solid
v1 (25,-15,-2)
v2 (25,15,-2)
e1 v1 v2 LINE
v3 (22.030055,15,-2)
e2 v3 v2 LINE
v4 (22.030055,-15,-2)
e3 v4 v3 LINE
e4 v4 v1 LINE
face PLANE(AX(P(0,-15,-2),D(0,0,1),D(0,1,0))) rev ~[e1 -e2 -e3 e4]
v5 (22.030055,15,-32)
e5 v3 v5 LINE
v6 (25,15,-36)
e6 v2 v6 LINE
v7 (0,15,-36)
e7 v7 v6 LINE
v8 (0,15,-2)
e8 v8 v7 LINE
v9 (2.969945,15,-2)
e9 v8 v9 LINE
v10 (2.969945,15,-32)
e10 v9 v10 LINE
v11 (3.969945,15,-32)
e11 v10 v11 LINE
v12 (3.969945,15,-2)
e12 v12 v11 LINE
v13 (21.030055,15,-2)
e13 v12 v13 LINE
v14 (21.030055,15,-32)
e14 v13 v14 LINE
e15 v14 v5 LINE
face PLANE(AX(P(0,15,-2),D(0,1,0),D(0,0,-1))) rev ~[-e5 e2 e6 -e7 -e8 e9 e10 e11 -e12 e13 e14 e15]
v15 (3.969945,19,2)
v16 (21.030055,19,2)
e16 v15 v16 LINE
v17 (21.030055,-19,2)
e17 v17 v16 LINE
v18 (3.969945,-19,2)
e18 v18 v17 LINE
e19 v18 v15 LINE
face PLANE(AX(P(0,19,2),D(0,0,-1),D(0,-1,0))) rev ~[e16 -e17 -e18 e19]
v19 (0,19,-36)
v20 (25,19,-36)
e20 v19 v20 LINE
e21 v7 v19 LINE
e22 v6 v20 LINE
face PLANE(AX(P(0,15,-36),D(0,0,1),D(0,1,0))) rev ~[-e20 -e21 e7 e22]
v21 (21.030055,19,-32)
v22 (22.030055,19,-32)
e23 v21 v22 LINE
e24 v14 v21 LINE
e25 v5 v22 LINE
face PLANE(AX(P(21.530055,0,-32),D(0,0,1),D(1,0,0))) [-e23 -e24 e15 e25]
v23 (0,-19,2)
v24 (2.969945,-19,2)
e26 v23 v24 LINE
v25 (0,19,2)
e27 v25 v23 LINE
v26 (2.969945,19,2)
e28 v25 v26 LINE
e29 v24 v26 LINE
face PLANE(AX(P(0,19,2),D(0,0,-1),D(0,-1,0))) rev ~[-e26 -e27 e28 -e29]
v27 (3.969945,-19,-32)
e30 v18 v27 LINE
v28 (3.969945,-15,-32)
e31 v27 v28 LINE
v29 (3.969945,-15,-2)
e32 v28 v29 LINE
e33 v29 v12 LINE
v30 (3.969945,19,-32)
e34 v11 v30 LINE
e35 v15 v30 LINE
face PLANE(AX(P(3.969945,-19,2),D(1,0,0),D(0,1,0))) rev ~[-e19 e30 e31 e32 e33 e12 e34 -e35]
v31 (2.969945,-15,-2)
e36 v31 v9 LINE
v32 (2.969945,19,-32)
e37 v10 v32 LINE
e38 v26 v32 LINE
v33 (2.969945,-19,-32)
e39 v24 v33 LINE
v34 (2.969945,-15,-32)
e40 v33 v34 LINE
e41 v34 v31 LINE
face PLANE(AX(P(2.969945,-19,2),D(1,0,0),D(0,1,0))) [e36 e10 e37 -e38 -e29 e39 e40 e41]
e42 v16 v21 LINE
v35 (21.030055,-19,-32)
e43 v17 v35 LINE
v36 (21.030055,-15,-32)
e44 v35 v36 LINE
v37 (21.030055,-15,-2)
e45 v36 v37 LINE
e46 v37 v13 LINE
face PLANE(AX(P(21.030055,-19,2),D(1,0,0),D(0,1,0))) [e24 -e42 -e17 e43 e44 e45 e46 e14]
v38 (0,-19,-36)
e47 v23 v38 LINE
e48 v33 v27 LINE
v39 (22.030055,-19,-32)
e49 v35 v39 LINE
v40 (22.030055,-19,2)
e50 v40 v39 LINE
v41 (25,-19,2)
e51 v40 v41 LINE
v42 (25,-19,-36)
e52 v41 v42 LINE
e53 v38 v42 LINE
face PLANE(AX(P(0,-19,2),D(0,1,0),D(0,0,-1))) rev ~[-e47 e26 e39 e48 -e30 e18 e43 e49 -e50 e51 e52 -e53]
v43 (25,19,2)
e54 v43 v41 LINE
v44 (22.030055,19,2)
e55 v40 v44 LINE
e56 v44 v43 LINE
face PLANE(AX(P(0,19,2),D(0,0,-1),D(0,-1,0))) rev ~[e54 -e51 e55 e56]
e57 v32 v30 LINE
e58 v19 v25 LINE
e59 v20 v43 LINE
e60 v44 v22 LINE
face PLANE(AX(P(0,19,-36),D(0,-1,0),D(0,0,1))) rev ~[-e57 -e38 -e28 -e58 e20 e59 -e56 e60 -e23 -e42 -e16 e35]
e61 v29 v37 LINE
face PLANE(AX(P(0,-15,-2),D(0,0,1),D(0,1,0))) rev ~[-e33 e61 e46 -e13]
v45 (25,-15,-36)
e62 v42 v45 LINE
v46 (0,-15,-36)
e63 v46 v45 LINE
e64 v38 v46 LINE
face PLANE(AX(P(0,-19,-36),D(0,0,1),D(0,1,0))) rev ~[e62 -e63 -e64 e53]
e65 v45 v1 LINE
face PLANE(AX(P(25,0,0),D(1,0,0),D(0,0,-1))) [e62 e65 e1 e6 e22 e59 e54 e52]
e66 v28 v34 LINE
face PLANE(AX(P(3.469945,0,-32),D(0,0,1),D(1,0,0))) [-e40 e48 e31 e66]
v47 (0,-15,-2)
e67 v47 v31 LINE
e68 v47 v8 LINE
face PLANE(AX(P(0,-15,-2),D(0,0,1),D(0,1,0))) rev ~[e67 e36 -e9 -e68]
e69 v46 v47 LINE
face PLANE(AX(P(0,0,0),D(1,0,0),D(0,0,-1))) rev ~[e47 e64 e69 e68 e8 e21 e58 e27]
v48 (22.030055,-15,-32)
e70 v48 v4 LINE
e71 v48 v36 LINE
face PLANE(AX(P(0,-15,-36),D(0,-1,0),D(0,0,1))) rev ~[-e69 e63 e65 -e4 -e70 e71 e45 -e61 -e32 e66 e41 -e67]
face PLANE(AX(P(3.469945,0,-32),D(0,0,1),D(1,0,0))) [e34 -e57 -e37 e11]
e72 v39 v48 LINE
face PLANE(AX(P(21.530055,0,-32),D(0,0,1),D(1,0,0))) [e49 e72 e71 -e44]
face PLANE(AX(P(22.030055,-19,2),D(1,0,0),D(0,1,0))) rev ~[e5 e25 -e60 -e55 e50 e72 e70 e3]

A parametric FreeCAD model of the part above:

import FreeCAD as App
import Part
import Sketcher
from FreeCAD import Vector


def add_polygon(sketch, points):
    """Adds a closed chain of lines whose ends are joined by coincident constraints."""
    first, n = sketch.GeometryCount, len(points)
    for a, b in zip(points, points[1:] + points[:1]):
        sketch.addGeometry(Part.LineSegment(App.Vector(*a, 0), App.Vector(*b, 0)), False)
    for i in range(n):
        sketch.addConstraint(Sketcher.Constraint("Coincident", first + i, 2, first + (i + 1) % n, 1))

doc = App.newDocument("Part")
body = doc.addObject("PartDesign::Body", "Body")

sketch1 = doc.addObject("Sketcher::SketchObject", "Sketch")
body.addObject(sketch1)
sketch1.AttachmentSupport = (doc.YZ_Plane, [""])
sketch1.MapMode = "FlatFace"
add_polygon(sketch1, [(-15, -2), (15, -2), (15, -36), (19, -36), (19, 2), (-19, 2), (-19, -36), (-15, -36)])
sketch1.addConstraint([
    Sketcher.Constraint("Horizontal", 0),
    Sketcher.Constraint("Vertical", 1),
    Sketcher.Constraint("Horizontal", 2),
    Sketcher.Constraint("Vertical", 3),
    Sketcher.Constraint("Horizontal", 4),
    Sketcher.Constraint("Vertical", 5),
    Sketcher.Constraint("Horizontal", 6),
    Sketcher.Constraint("Vertical", 7),
    Sketcher.Constraint("Symmetric", 2, 2, 5, 2, -2),
    Sketcher.Constraint("Equal", 2, 6),
    Sketcher.Constraint("Equal", 4, 3),
    Sketcher.Constraint("DistanceX", 0, 1, 0, 2, 30.0),
    Sketcher.Constraint("DistanceX", 2, 1, 2, 2, 4.0),
    Sketcher.Constraint("DistanceY", 1, 2, 1, 1, 34.0),
    Sketcher.Constraint("DistanceY", 0, 2, -1, 1, 2.0),
])
pad1 = doc.addObject("PartDesign::Pad", "Pad")
body.addObject(pad1)
pad1.Profile = sketch1
pad1.Length = 25

sketch2 = doc.addObject("Sketcher::SketchObject", "Sketch001")
body.addObject(sketch2)
sketch2.AttachmentSupport = (doc.XY_Plane, [""])
sketch2.MapMode = "FlatFace"
sketch2.AttachmentOffset = App.Placement(Vector(0, 0, 2), App.Rotation())
add_polygon(sketch2, [(3, 19), (3, -19), (4, -19), (4, 19)])
add_polygon(sketch2, [(21, 19), (21, -19), (22, -19), (22, 19)])
sketch2.addConstraint([
    Sketcher.Constraint("Vertical", 0),
    Sketcher.Constraint("Horizontal", 1),
    Sketcher.Constraint("Vertical", 2),
    Sketcher.Constraint("Horizontal", 3),
    Sketcher.Constraint("Vertical", 4),
    Sketcher.Constraint("Horizontal", 5),
    Sketcher.Constraint("Vertical", 6),
    Sketcher.Constraint("Horizontal", 7),
    Sketcher.Constraint("Horizontal", 1, 2, 4, 2),
    Sketcher.Constraint("Horizontal", 3, 2, 6, 2),
    Sketcher.Constraint("Equal", 3, 5),
    Sketcher.Constraint("DistanceX", 1, 1, 1, 2, 1.0),
    Sketcher.Constraint("DistanceY", 0, 2, 0, 1, 38.0),
    Sketcher.Constraint("DistanceY", 0, 2, -1, 1, 19.0),
    Sketcher.Constraint("DistanceX", 1, 2, 4, 2, 17.06011),
    Sketcher.Constraint("DistanceX", -1, 1, 0, 2, 2.969945),
])
pocket1 = doc.addObject("PartDesign::Pocket", "Pocket")
body.addObject(pocket1)
pocket1.Profile = sketch2
pocket1.Length = 34

doc.recompute()
